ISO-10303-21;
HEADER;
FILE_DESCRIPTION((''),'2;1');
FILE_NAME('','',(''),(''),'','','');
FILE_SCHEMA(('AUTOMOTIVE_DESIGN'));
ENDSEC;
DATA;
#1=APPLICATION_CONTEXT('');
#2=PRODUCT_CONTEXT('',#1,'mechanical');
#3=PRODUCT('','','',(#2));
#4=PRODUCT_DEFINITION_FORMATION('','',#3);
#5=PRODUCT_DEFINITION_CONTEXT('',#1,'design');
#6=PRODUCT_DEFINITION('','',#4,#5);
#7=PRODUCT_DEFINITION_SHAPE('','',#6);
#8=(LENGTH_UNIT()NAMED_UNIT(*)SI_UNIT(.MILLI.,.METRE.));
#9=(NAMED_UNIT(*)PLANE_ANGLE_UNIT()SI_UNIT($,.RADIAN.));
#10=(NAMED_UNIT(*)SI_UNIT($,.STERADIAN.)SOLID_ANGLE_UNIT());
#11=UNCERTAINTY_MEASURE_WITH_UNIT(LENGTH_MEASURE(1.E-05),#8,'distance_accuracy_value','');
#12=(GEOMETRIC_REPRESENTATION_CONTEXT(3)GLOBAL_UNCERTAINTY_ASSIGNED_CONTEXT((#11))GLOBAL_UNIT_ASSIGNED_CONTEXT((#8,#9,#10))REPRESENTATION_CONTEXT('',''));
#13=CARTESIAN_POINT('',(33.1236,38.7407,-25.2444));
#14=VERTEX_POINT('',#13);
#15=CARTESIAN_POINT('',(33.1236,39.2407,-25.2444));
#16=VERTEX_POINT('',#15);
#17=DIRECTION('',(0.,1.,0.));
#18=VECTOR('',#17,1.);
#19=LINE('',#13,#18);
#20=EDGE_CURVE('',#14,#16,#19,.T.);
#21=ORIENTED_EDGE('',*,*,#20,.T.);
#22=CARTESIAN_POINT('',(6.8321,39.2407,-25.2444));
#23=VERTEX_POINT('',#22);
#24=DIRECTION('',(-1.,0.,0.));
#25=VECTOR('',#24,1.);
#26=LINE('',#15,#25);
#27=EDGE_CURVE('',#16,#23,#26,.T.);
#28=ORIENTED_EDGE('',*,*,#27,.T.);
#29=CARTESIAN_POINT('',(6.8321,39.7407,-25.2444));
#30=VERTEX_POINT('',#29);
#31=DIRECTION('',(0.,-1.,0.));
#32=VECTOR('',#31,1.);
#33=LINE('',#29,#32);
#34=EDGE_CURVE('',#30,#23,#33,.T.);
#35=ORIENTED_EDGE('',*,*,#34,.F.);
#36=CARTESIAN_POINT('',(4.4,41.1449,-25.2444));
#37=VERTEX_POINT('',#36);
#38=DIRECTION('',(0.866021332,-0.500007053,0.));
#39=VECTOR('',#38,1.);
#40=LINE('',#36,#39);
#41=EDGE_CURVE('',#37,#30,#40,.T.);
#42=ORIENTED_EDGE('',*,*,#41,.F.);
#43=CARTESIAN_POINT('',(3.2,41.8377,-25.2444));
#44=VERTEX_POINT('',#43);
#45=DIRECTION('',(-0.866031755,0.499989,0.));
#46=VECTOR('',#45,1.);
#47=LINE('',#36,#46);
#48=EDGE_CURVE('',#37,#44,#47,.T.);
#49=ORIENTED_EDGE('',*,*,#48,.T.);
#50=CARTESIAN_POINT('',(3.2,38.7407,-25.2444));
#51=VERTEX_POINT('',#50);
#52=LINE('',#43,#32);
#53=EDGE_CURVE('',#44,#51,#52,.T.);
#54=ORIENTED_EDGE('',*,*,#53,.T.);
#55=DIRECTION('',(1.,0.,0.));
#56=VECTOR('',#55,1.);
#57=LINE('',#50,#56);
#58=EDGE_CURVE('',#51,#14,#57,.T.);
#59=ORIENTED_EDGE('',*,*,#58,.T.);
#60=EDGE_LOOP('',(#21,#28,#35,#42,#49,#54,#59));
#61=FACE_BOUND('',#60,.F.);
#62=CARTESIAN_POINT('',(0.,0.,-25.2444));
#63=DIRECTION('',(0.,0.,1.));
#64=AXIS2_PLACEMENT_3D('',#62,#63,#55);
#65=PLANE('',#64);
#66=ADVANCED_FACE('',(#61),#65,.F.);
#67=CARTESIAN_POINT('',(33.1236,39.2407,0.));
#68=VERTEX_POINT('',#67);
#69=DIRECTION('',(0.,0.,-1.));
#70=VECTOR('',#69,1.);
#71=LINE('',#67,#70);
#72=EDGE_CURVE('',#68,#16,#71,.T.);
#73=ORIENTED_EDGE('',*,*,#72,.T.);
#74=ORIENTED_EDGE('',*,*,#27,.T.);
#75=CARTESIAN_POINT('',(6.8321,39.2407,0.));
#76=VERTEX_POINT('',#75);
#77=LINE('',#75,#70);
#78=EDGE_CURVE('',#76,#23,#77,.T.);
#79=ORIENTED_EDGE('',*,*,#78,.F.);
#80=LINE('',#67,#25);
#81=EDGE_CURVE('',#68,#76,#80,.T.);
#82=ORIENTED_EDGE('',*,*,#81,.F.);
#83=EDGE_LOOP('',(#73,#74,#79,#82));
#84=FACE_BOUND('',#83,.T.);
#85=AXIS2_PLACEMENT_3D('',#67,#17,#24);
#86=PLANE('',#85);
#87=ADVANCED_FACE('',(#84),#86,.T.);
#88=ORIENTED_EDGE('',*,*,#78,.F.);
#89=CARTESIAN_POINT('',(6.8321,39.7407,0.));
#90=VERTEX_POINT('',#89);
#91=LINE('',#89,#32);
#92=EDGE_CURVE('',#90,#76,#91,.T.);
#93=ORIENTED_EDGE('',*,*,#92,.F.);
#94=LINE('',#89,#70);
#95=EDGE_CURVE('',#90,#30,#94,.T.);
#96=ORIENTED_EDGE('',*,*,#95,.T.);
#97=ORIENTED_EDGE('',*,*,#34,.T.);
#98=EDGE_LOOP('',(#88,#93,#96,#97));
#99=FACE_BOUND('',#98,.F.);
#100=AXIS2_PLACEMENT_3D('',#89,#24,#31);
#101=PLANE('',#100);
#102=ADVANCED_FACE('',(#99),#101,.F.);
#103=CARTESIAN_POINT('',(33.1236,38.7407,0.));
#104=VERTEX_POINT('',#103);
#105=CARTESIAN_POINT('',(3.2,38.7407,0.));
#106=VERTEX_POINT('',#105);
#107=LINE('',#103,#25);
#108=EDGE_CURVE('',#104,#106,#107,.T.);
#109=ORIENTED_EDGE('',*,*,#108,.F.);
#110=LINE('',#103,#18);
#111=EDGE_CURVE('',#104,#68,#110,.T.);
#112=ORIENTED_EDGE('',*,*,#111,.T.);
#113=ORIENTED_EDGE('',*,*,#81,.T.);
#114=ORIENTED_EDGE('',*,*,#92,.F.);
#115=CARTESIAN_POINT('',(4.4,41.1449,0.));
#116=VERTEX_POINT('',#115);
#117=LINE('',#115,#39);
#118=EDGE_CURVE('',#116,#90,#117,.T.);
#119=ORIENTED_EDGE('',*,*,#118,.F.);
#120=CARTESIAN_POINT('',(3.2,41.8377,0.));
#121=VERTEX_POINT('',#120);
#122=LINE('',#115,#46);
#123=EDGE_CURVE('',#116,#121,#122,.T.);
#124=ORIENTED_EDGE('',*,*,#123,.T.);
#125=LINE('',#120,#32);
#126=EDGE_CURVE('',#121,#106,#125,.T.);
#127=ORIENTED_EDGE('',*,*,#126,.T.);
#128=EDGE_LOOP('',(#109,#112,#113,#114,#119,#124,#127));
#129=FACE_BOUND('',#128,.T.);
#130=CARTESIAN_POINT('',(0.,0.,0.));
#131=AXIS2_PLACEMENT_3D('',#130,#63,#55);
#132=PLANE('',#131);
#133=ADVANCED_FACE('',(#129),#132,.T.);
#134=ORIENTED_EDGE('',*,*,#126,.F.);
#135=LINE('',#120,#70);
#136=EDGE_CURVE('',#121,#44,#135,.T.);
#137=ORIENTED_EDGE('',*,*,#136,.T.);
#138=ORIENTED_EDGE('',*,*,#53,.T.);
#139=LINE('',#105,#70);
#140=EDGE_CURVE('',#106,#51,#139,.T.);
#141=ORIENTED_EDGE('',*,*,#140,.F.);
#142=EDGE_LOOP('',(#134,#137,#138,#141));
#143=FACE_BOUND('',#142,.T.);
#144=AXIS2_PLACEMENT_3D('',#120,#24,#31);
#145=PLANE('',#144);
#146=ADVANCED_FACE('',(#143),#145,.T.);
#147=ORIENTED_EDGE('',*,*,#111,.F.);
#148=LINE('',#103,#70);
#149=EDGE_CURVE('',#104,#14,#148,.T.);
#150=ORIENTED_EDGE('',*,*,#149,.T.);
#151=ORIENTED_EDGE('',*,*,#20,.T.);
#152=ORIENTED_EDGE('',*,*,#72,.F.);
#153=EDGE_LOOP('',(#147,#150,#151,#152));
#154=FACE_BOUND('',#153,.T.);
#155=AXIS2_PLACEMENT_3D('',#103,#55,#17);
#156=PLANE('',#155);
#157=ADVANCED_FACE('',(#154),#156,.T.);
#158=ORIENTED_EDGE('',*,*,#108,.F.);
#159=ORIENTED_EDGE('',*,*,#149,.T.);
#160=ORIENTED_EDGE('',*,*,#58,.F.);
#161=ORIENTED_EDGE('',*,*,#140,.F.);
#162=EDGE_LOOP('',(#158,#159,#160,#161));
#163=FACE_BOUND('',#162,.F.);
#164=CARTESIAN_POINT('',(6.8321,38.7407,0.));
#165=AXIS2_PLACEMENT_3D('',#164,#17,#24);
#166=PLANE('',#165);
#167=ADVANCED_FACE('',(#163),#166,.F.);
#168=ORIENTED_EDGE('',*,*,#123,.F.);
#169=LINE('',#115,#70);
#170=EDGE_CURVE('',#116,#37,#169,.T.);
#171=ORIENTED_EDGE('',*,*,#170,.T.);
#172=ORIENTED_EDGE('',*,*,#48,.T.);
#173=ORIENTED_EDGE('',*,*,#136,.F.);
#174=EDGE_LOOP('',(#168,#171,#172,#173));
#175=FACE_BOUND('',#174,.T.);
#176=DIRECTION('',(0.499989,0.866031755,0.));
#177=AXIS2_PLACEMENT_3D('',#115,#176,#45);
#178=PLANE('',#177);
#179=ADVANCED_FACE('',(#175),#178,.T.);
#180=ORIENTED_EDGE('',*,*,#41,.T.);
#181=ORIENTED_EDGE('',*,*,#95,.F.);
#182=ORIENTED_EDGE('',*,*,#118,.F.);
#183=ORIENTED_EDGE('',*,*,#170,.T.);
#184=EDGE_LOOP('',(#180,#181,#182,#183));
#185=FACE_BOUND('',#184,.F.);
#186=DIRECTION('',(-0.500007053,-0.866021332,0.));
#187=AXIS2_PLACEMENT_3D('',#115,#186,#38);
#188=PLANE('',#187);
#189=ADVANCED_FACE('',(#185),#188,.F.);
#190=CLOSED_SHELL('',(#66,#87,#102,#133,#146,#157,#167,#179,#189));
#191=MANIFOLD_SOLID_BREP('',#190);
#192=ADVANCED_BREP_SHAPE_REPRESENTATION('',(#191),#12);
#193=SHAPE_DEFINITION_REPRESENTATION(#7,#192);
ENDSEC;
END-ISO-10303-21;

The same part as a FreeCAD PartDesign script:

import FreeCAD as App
import Part
import Sketcher
from FreeCAD import Vector
Q = App.Units.Quantity


def add_polygon(sketch, points):
    """Adds a closed chain of lines whose ends are joined by coincident constraints."""
    first, n = sketch.GeometryCount, len(points)
    for a, b in zip(points, points[1:] + points[:1]):
        sketch.addGeometry(Part.LineSegment(App.Vector(*a, 0), App.Vector(*b, 0)), False)
    for i in range(n):
        sketch.addConstraint(Sketcher.Constraint("Coincident", first + i, 2, first + (i + 1) % n, 1))

doc = App.newDocument("Part")
body = doc.addObject("PartDesign::Body", "Body")

sketch1 = doc.addObject("Sketcher::SketchObject", "Sketch")
body.addObject(sketch1)
sketch1.AttachmentSupport = (doc.XY_Plane, [""])
sketch1.MapMode = "FlatFace"
add_polygon(sketch1, [(3.2, 41.8377), (3.2, 38.7407), (33.1236, 38.7407), (33.1236, 39.2407), (6.8321, 39.2407), (6.8321, 39.7407), (4.4, 41.1449)])
sketch1.addConstraint([
    Sketcher.Constraint("Vertical", 0),
    Sketcher.Constraint("Horizontal", 1),
    Sketcher.Constraint("Vertical", 2),
    Sketcher.Constraint("Horizontal", 3),
    Sketcher.Constraint("Vertical", 4),
    Sketcher.Constraint("Parallel", 5, 6),
    Sketcher.Constraint("Equal", 2, 4),
    Sketcher.Constraint("DistanceY", 2, 1, 2, 2, 0.5),
    Sketcher.Constraint("Angle", 5, Q("149.9995 deg")),
    Sketcher.Constraint("DistanceX", -1, 1, 0, 2, 3.2),
    Sketcher.Constraint("DistanceX", -1, 1, 5, 2, 4.4),
    Sketcher.Constraint("DistanceY", 4, 2, 5, 2, 1.4042),
    Sketcher.Constraint("DistanceX", 1, 1, 1, 2, 29.9236),
    Sketcher.Constraint("DistanceY", -1, 1, 5, 2, 41.145),
])
pad1 = doc.addObject("PartDesign::Pad", "Pad")
body.addObject(pad1)
pad1.Profile = sketch1
pad1.Length = 25.2444
pad1.Reversed = True

doc.recompute()
